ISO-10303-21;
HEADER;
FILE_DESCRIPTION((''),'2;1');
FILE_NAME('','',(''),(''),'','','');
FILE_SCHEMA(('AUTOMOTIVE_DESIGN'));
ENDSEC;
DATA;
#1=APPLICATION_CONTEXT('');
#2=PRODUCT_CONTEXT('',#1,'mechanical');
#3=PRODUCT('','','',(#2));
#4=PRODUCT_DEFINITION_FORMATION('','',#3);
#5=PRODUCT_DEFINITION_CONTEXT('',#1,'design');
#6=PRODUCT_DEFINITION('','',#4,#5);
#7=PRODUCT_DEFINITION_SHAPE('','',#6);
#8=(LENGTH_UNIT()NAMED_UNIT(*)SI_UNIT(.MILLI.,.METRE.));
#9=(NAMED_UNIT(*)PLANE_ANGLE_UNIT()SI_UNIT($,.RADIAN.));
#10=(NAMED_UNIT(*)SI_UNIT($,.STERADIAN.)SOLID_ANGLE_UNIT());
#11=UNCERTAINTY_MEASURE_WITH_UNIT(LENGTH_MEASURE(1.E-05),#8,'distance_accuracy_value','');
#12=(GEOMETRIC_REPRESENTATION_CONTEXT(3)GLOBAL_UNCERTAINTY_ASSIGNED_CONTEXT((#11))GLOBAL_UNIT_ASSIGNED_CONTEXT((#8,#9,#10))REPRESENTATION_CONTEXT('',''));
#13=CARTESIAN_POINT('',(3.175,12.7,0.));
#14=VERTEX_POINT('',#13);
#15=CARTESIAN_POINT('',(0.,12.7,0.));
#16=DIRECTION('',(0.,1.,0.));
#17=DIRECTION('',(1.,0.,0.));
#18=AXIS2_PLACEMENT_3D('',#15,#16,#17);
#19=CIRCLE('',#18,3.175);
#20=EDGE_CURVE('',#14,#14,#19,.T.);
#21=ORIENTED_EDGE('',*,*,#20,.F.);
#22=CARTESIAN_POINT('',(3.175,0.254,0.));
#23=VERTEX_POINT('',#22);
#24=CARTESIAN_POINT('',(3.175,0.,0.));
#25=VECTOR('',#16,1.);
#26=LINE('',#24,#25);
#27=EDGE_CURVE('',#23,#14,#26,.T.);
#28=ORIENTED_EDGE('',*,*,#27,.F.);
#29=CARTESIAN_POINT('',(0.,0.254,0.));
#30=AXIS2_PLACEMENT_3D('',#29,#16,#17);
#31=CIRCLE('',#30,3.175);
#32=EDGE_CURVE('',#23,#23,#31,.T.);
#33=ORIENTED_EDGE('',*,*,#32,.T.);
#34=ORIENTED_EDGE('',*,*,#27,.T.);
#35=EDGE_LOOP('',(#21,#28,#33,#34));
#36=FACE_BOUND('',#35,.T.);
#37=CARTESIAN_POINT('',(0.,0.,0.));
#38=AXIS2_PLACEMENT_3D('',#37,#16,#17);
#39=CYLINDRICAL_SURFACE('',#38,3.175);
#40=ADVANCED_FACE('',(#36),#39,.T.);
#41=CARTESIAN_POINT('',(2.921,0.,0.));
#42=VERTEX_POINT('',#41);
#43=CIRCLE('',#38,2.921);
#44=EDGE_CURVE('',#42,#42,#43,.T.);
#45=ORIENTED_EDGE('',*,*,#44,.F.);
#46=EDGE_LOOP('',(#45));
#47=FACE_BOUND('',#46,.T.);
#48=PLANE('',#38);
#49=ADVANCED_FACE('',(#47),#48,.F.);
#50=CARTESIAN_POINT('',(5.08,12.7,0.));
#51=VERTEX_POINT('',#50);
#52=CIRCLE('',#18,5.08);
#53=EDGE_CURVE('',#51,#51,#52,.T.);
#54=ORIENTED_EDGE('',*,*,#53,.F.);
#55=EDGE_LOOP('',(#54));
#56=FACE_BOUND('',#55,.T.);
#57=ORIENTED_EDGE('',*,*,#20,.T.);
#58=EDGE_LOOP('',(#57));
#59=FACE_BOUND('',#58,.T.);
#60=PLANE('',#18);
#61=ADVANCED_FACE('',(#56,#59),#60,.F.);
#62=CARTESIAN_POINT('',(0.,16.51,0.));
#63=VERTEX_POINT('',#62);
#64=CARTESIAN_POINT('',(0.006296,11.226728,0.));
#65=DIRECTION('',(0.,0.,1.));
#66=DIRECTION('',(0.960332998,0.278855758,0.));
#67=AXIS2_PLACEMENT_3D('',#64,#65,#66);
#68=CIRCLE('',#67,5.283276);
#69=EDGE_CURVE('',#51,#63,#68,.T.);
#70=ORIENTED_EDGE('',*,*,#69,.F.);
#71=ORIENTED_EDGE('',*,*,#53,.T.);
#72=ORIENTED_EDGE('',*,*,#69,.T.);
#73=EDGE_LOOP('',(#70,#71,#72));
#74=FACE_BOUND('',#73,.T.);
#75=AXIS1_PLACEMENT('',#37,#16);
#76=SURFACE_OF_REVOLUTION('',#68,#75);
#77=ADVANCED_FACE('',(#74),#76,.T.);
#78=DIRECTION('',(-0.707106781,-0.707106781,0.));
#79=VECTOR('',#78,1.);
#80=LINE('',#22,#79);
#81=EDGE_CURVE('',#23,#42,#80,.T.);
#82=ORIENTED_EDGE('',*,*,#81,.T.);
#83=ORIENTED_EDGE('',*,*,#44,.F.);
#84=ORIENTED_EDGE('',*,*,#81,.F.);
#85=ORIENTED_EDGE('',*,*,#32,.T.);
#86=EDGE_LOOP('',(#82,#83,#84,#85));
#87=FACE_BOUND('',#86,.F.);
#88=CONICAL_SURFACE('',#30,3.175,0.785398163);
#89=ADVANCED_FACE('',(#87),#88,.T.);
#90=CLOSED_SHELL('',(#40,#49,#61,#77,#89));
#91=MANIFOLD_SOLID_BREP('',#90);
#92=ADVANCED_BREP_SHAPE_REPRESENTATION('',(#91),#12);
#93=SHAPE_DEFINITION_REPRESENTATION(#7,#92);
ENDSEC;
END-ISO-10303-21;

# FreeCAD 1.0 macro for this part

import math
import FreeCAD as App
import Part
import Sketcher

V = App.Vector
Q = App.Units.Quantity


def edges_at(feature, points):
    """Names of the edges that pass closest to the given points."""
    edges = feature.Shape.Edges
    near = lambda p: min(range(len(edges)), key=lambda i: edges[i].distToShape(Part.Vertex(*p))[0])
    return sorted({f"Edge{near(p) + 1}" for p in points})

doc = App.newDocument("Part")
body = doc.addObject("PartDesign::Body", "Body")

# Sketch on XY plane
sketch1 = doc.addObject("Sketcher::SketchObject", "Sketch")
body.addObject(sketch1)
sketch1.AttachmentSupport = (doc.XY_Plane, [""])
sketch1.MapMode = "FlatFace"
sketch1.addGeometry([
    Part.LineSegment(V(0, 16.5, 0), V(0, 0, 0)),  # 0
    Part.LineSegment(V(0, 0, 0), V(3.2, 0, 0)),  # 1
    Part.LineSegment(V(3.2, 0, 0), V(3.2, 12.7, 0)),  # 2
    Part.LineSegment(V(3.2, 12.7, 0), V(5.1, 12.7, 0)),  # 3
    Part.ArcOfCircle(Part.Circle(V(0, 11.2, 0), V(0, 0, 1), 5.3), math.radians(16), math.radians(90)),  # 4
], False)
sketch1.addConstraint([
    Sketcher.Constraint("Coincident", 0, 2, 1, 1),
    Sketcher.Constraint("Coincident", 1, 2, 2, 1),
    Sketcher.Constraint("Coincident", 2, 2, 3, 1),
    Sketcher.Constraint("Coincident", 3, 2, 4, 1),
    Sketcher.Constraint("Coincident", 4, 2, 0, 1),
    Sketcher.Constraint("Vertical", 0),
    Sketcher.Constraint("Horizontal", 1),
    Sketcher.Constraint("Vertical", 2),
    Sketcher.Constraint("Horizontal", 3),
    Sketcher.Constraint("Coincident", 0, 2, -1, 1),
    Sketcher.Constraint("DistanceY", 2, 1, 2, 2, Q("0.5 in")),
    Sketcher.Constraint("Radius", 4, Q("0.208 in")),
    Sketcher.Constraint("DistanceY", 0, 2, 0, 1, Q("0.65 in")),
    Sketcher.Constraint("DistanceX", 1, 1, 1, 2, Q("0.125 in")),
    Sketcher.Constraint("DistanceX", 3, 1, 3, 2, Q("0.075 in")),
])
revolution = doc.addObject("PartDesign::Revolution", "Revolution")
body.addObject(revolution)
revolution.Profile = sketch1
revolution.ReferenceAxis = (sketch1, ["V_Axis"])
revolution.Angle = 360
doc.recompute()

chamfer = doc.addObject("PartDesign::Chamfer", "Chamfer")
body.addObject(chamfer)
chamfer.Base = (revolution, edges_at(revolution, [(-3.175, 0, 0)]))
chamfer.Size = Q("0.01 in")

doc.recompute()
